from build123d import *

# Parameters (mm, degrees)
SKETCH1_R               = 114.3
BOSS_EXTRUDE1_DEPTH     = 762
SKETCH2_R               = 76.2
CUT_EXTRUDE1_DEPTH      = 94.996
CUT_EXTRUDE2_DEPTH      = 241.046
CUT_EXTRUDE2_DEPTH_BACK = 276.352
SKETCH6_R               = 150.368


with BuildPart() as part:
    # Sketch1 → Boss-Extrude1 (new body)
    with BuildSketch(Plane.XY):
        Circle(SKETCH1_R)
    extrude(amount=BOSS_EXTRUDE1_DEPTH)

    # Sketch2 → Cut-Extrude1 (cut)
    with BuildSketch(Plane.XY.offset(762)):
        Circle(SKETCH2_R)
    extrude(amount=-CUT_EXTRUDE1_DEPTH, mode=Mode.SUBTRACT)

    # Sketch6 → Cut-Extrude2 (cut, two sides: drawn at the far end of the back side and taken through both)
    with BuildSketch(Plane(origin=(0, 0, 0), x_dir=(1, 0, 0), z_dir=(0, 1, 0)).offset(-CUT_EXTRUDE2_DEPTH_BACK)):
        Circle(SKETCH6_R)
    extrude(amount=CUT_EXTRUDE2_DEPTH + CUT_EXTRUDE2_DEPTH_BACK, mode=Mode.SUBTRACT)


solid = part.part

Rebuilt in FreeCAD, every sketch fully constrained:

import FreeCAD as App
import Part
import Sketcher
from FreeCAD import Vector
Q = App.Units.Quantity

doc = App.newDocument("Part")
params = doc.addObject("Spreadsheet::Sheet", "Params")
for row, (alias, value) in enumerate([
    ("sketch1_diameter", "9 in"),
    ("pad1_length", "30 in"),
    ("sketch2_diameter", "6 in"),
    ("pocket1_length", "3.74 in"),
    ("sketch3_diameter", "11.84 in"),
], start=1):
    params.set(f"A{row}", alias)
    params.set(f"B{row}", "=" + value)
    params.setAlias(f"B{row}", alias)

body = doc.addObject("PartDesign::Body", "Body")

sketch1 = body.newObject("Sketcher::SketchObject", "Sketch")
sketch1.AttachmentSupport = (doc.getObject("XY_Plane"), [""])
sketch1.MapMode = "FlatFace"
sketch1.addGeometry(Part.Circle(Vector(0, 0, 0), Vector(0, 0, 1), 114), False)
sketch1.addConstraint([
    Sketcher.Constraint("Coincident", 0, 3, -1, 1),
    Sketcher.Constraint("Diameter", 0, Q("9 in")),
])
sketch1.setExpression("Constraints[1]", "Params.sketch1_diameter")
pad1 = body.newObject("PartDesign::Pad", "Pad")
pad1.Profile = sketch1
pad1.setExpression("Length", "Params.pad1_length")

sketch2 = body.newObject("Sketcher::SketchObject", "Sketch001")
sketch2.AttachmentSupport = (doc.getObject("XY_Plane"), [""])
sketch2.MapMode = "FlatFace"
sketch2.AttachmentOffset = App.Placement(Vector(0, 0, 30 * 25.4), App.Rotation())
sketch2.addGeometry(Part.Circle(Vector(0, 0, 0), Vector(0, 0, 1), 76), False)
sketch2.addConstraint([
    Sketcher.Constraint("Coincident", 0, 3, -1, 1),
    Sketcher.Constraint("Diameter", 0, Q("6 in")),
])
sketch2.setExpression("Constraints[1]", "Params.sketch2_diameter")
pocket1 = body.newObject("PartDesign::Pocket", "Pocket")
pocket1.Profile = sketch2
pocket1.setExpression("Length", "Params.pocket1_length")

sketch3 = body.newObject("Sketcher::SketchObject", "Sketch002")
sketch3.AttachmentSupport = (doc.getObject("XZ_Plane"), [""])
sketch3.MapMode = "FlatFace"
sketch3.addGeometry(Part.Circle(Vector(0, 0, 0), Vector(0, 0, 1), 150), False)
sketch3.addConstraint([
    Sketcher.Constraint("Coincident", 0, 3, -1, 1),
    Sketcher.Constraint("Diameter", 0, Q("11.84 in")),
])
sketch3.setExpression("Constraints[1]", "Params.sketch3_diameter")
pocket2 = body.newObject("PartDesign::Pocket", "Pocket001")
pocket2.Profile = sketch3
pocket2.Type = "ThroughAll"
pocket2.Midplane = True

doc.recompute()
